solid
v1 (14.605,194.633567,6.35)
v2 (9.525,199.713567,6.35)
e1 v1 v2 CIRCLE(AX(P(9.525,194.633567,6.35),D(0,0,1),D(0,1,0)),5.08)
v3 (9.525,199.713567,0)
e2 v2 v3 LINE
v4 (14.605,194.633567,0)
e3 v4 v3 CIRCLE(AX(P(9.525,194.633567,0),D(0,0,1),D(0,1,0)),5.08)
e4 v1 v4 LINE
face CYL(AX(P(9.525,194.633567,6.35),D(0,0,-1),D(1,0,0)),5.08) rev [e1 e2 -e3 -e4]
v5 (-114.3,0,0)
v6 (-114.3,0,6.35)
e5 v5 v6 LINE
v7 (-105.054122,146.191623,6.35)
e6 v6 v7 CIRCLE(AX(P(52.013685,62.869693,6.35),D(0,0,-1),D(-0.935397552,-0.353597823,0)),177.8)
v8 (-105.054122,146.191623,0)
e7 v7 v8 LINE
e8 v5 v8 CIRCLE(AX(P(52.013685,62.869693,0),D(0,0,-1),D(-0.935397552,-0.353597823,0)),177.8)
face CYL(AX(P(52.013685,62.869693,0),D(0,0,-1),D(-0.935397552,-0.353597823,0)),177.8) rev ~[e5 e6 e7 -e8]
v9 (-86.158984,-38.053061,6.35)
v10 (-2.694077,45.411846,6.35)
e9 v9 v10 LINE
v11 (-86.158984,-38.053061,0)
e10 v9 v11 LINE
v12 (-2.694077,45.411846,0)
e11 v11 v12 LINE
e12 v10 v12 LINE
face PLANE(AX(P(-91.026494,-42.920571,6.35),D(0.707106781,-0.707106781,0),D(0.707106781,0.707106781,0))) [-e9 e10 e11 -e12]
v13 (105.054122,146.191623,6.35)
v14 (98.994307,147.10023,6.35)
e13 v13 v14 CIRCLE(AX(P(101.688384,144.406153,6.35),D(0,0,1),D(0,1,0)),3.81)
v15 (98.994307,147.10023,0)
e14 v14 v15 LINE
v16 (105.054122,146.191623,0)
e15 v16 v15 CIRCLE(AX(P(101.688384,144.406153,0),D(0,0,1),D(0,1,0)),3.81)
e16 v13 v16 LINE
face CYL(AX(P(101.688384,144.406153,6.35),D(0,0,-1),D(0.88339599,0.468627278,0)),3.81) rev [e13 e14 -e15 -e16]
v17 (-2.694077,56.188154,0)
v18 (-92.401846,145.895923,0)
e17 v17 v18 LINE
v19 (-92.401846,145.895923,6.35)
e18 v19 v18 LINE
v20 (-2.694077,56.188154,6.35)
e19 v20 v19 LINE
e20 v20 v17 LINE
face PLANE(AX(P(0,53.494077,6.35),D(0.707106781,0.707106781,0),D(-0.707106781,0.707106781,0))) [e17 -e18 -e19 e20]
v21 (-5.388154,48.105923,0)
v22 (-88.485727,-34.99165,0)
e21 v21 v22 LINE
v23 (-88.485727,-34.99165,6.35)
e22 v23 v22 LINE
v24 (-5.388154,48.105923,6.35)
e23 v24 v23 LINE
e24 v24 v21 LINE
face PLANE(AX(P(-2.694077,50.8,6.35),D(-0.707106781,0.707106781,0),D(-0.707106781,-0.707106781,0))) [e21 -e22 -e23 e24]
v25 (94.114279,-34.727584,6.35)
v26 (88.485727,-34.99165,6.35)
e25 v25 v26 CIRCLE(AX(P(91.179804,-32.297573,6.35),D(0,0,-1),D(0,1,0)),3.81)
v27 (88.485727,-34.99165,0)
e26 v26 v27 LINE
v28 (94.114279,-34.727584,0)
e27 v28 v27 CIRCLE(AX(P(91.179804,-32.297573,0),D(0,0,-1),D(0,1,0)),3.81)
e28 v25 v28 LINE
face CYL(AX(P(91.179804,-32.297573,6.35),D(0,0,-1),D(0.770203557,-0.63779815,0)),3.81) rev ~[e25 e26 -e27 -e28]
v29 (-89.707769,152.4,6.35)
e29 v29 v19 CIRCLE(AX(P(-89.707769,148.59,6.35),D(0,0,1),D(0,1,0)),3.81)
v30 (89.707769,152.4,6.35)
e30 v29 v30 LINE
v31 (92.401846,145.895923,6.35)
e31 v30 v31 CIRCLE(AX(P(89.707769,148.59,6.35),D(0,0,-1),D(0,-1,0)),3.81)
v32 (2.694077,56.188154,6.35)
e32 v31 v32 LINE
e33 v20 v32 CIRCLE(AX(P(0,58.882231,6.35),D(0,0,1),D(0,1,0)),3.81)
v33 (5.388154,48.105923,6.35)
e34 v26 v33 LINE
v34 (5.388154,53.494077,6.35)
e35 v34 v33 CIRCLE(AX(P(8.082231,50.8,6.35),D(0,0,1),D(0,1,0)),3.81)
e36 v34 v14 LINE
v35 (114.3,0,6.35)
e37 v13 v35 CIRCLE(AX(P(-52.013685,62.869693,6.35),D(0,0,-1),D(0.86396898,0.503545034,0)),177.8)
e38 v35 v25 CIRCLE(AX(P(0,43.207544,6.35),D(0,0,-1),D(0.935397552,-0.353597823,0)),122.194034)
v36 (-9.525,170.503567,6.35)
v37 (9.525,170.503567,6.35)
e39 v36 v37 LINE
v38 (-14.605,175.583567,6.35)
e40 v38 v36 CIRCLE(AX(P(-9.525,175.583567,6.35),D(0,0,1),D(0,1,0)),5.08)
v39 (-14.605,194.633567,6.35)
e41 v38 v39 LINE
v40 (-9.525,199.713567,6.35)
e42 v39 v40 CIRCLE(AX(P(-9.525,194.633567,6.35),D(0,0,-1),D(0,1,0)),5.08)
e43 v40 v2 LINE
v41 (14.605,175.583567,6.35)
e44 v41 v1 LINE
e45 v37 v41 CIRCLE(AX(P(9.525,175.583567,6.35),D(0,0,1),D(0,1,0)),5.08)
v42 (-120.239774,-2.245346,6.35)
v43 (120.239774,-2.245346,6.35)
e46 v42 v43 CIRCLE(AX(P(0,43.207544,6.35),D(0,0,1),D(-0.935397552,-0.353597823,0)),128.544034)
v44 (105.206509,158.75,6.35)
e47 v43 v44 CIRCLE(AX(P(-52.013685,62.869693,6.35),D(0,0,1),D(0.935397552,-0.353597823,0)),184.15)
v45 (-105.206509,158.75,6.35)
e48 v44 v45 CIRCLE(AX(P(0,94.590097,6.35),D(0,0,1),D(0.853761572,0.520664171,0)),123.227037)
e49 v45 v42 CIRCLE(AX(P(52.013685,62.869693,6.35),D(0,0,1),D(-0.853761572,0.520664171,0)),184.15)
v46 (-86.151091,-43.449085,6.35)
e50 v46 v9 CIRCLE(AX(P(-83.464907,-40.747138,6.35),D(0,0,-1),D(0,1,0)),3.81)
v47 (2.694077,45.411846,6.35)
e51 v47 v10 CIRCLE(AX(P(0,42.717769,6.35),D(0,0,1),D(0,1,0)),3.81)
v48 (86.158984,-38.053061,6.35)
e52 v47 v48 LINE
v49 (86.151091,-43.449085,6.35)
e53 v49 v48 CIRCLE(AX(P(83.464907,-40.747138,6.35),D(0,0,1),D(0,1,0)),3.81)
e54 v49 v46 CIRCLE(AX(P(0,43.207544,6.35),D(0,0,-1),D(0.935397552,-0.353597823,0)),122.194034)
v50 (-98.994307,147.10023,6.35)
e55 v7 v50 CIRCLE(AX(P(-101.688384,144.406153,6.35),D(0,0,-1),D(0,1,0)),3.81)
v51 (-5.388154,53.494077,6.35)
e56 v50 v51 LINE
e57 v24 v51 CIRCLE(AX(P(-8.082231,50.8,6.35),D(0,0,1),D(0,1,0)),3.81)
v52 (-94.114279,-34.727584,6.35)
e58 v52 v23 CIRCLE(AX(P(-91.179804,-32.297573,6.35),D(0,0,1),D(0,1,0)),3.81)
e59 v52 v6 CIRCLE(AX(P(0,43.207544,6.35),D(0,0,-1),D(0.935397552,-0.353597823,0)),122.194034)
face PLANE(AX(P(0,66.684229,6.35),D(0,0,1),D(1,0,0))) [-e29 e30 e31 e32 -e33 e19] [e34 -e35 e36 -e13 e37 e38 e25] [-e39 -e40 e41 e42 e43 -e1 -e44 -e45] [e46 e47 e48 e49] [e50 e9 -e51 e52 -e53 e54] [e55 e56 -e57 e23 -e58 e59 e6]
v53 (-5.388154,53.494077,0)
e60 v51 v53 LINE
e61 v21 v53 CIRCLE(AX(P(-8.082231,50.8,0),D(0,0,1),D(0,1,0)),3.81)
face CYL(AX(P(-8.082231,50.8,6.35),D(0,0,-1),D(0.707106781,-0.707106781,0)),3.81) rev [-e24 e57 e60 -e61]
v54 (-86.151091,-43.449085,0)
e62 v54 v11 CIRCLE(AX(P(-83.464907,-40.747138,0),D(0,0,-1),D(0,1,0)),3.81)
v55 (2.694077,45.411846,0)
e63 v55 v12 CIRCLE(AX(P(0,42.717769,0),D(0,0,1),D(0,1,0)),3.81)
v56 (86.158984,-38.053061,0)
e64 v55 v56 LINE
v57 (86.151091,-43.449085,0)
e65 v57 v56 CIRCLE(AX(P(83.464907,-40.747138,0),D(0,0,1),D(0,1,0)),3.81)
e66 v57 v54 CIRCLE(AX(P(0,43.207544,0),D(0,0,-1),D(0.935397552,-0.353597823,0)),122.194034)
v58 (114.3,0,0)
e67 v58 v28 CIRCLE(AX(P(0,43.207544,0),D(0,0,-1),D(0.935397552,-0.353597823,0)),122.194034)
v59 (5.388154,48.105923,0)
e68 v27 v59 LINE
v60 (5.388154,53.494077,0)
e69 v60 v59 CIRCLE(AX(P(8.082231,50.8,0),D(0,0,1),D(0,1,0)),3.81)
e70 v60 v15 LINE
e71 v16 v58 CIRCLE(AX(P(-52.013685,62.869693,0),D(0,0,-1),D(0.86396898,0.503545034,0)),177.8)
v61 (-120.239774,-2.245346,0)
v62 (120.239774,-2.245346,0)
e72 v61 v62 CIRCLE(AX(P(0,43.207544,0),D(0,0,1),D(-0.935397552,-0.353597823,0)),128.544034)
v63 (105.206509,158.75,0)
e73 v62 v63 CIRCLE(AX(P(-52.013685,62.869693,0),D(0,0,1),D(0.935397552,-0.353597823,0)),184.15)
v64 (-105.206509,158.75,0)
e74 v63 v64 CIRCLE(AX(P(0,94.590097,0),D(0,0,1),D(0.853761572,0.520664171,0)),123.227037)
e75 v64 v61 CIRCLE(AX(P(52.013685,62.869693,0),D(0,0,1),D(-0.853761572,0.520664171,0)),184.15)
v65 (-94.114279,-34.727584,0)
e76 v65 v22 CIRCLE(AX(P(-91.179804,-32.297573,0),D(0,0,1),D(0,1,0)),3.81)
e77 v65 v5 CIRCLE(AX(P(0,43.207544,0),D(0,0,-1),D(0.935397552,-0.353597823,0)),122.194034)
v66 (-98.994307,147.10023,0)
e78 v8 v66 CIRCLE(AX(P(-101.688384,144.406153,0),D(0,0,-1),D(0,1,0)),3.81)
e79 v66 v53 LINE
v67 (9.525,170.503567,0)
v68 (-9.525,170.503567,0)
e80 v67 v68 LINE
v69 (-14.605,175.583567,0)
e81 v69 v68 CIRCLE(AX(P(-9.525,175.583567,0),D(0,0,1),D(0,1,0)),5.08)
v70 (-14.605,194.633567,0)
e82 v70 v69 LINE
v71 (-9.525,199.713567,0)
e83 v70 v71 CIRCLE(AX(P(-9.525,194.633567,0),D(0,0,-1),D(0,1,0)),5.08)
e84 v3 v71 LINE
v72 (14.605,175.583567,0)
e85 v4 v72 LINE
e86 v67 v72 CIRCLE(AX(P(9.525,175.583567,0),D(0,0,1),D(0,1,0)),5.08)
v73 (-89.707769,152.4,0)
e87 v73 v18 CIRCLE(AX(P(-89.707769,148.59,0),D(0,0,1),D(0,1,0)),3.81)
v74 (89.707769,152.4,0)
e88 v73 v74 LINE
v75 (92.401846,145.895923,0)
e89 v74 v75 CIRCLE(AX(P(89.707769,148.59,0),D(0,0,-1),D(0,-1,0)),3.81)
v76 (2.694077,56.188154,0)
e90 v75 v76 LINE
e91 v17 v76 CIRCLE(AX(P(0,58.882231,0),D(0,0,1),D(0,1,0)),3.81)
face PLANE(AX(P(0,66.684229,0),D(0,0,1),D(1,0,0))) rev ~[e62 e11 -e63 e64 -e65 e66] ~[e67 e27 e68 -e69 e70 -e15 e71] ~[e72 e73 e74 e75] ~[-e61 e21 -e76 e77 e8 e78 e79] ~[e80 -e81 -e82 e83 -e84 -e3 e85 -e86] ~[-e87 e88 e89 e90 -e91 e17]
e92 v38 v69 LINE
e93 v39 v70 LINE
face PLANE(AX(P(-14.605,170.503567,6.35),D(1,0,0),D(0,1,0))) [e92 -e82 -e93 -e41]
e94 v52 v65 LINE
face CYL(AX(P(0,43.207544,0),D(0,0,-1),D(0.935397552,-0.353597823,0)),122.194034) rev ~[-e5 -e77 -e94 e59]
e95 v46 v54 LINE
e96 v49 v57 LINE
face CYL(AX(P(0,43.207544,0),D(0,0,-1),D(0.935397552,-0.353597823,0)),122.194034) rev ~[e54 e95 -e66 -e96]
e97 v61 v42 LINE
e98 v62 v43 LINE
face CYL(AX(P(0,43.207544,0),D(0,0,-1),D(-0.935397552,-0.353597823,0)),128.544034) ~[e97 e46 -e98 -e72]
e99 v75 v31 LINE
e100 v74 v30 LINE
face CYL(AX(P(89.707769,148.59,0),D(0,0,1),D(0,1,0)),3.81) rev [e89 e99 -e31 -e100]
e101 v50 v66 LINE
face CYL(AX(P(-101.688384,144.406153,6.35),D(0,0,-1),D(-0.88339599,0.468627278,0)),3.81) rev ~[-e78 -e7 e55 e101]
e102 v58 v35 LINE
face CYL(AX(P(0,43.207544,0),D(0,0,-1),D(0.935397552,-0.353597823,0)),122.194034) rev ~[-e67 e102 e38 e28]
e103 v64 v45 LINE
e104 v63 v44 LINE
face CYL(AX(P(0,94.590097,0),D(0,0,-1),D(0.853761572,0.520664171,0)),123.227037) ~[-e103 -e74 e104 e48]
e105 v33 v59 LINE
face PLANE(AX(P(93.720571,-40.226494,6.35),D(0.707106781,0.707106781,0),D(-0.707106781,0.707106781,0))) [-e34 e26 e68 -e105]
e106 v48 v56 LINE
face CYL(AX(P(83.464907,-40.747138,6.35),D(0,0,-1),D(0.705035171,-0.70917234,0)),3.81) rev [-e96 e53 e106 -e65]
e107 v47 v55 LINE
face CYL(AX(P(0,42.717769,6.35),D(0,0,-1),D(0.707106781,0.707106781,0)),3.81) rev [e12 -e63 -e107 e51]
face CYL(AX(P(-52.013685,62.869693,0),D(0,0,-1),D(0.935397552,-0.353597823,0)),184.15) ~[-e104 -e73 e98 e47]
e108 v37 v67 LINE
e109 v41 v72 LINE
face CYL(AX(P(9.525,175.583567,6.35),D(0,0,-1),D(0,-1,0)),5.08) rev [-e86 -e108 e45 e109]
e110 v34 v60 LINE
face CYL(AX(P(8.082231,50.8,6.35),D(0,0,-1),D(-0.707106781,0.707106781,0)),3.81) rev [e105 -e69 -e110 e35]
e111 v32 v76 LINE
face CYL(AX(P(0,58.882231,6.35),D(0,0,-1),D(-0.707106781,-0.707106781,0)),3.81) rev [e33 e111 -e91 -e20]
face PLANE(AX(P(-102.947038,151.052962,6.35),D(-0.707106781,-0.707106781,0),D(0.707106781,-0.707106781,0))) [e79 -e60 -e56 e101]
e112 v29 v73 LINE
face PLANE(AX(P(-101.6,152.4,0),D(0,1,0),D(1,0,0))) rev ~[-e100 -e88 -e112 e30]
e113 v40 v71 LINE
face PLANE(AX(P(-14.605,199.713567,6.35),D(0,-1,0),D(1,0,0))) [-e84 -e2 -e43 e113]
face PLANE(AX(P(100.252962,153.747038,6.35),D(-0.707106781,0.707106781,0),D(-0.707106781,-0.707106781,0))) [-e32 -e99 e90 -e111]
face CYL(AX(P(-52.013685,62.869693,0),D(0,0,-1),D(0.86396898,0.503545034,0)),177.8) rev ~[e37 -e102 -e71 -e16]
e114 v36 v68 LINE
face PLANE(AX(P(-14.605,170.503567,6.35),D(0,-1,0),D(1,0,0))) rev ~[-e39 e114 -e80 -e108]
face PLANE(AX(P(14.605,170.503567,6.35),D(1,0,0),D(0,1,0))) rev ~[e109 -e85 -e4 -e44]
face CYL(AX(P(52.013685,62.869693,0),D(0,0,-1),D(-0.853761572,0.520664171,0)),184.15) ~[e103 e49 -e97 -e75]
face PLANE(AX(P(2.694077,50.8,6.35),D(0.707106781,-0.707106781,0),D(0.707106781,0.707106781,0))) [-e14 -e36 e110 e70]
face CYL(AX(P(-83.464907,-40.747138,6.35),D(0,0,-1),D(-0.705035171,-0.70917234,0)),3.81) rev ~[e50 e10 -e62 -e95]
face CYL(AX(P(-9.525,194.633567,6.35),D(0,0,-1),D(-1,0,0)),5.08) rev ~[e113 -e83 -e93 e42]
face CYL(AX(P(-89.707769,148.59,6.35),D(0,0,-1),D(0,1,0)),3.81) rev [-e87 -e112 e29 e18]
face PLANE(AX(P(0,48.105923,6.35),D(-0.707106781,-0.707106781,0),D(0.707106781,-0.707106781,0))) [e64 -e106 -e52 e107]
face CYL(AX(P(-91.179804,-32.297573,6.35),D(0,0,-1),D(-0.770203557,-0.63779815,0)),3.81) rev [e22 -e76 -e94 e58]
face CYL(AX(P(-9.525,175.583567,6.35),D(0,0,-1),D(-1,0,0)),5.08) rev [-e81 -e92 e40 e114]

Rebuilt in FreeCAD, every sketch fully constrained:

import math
import FreeCAD as App
import Part
import Sketcher
from FreeCAD import Vector
Q = App.Units.Quantity


def edges_at(feature, points):
    """Names of the edges that pass closest to the given points."""
    edges = feature.Shape.Edges
    near = lambda p: min(range(len(edges)), key=lambda i: edges[i].distToShape(Part.Vertex(*p))[0])
    return sorted({f"Edge{near(p) + 1}" for p in points})

doc = App.newDocument("Part")
params = doc.addObject("Spreadsheet::Sheet", "Params")
for row, (alias, value) in enumerate([
    ("sketch1_radius", "7 in"),
    ("sketch1_width", "8 in"),
    ("sketch1_radius2", "7.25 in"),
    ("pad1_length", "0.25 in"),
    ("sketch2_width", "1.15 in"),
    ("fillet_radius", "0.2 in"),
    ("sketch3_length", "0.15 in"),
    ("pad2_length", "0.25 in"),
    ("fillet2_radius", "0.15 in"),
], start=1):
    params.set(f"A{row}", alias)
    params.set(f"B{row}", "=" + value)
    params.setAlias(f"B{row}", alias)

body = doc.addObject("PartDesign::Body", "Body")

# Sketch on XY plane
sketch1 = body.newObject("Sketcher::SketchObject", "Sketch")
sketch1.AttachmentSupport = (doc.getObject("XY_Plane"), [""])
sketch1.MapMode = "FlatFace"
sketch1.addGeometry([
    Part.ArcOfCircle(Part.Circle(Vector(52, 63, 0), Vector(0, 0, 1), 184), math.radians(149), math.radians(201)),  # 0
    Part.ArcOfCircle(Part.Circle(Vector(0, 43, 0), Vector(0, 0, 1), 129), math.radians(-159), math.radians(-21)),  # 1
    Part.ArcOfCircle(Part.Circle(Vector(-52, 63, 0), Vector(0, 0, 1), 184), math.radians(-21), math.radians(31)),  # 2
    Part.ArcOfCircle(Part.Circle(Vector(0, 95, 0), Vector(0, 0, 1), 123), math.radians(31), math.radians(149)),  # 3
    Part.ArcOfCircle(Part.Circle(Vector(52, 63, 0), Vector(0, 0, 1), 178), math.radians(150), math.radians(201)),  # 4
    Part.LineSegment(Vector(-102, 152, 0), Vector(102, 152, 0)),  # 5
    Part.ArcOfCircle(Part.Circle(Vector(-52, 63, 0), Vector(0, 0, 1), 178), math.radians(-21), math.radians(30)),  # 6
    Part.ArcOfCircle(Part.Circle(Vector(0, 43, 0), Vector(0, 0, 1), 122), math.radians(-159), math.radians(-21)),  # 7
], False)
sketch1.addConstraint([
    Sketcher.Constraint("Tangent", 0, 2, 1, 1),
    Sketcher.Constraint("Tangent", 1, 2, 2, 1),
    Sketcher.Constraint("Tangent", 2, 2, 3, 1),
    Sketcher.Constraint("Tangent", 3, 2, 0, 1),
    Sketcher.Constraint("Coincident", 4, 1, 5, 1),
    Sketcher.Constraint("Coincident", 5, 2, 6, 2),
    Sketcher.Constraint("Tangent", 6, 1, 7, 2),
    Sketcher.Constraint("Tangent", 7, 1, 4, 2),
    Sketcher.Constraint("Horizontal", 5),
    Sketcher.Constraint("Coincident", 4, 3, 0, 3),
    Sketcher.Constraint("Coincident", 6, 3, 2, 3),
    Sketcher.Constraint("Coincident", 7, 3, 1, 3),
    Sketcher.Constraint("Equal", 0, 2),
    Sketcher.Constraint("Symmetric", 6, 1, 7, 1, -1, 1),
    Sketcher.Constraint("PointOnObject", 1, 3, -2),
    Sketcher.Constraint("Radius", 4, Q("7 in")),
    Sketcher.Constraint("DistanceX", 5, 1, 5, 2, Q("8 in")),
    Sketcher.Constraint("Radius", 0, Q("7.25 in")),
    Sketcher.Constraint("DistanceY", -1, 1, 4, 1, Q("6 in")),
    Sketcher.Constraint("DistanceX", -1, 1, 6, 1, Q("4.5 in")),
    Sketcher.Constraint("DistanceY", -1, 1, 2, 2, Q("6.25 in")),
])
sketch1.setExpression("Constraints[15]", "Params.sketch1_radius")
sketch1.setExpression("Constraints[16]", "Params.sketch1_width")
sketch1.setExpression("Constraints[17]", "Params.sketch1_radius2")
pad1 = body.newObject("PartDesign::Pad", "Pad")
pad1.Profile = sketch1
pad1.setExpression("Length", "Params.pad1_length")

# Sketch on XY plane
sketch2 = body.newObject("Sketcher::SketchObject", "Sketch001")
sketch2.AttachmentSupport = (doc.getObject("XY_Plane"), [""])
sketch2.MapMode = "FlatFace"
sketch2.AttachmentOffset = App.Placement(Vector(0, 0, 0.25 * 25.4), App.Rotation())
sketch2.addGeometry([
    Part.LineSegment(Vector(-15, 200, 0), Vector(-15, 171, 0)),
    Part.LineSegment(Vector(-15, 171, 0), Vector(15, 171, 0)),
    Part.LineSegment(Vector(15, 171, 0), Vector(15, 200, 0)),
    Part.LineSegment(Vector(15, 200, 0), Vector(-15, 200, 0)),
], False)
sketch2.addConstraint([
    Sketcher.Constraint("Coincident", 0, 2, 1, 1),
    Sketcher.Constraint("Coincident", 1, 2, 2, 1),
    Sketcher.Constraint("Coincident", 2, 2, 3, 1),
    Sketcher.Constraint("Coincident", 3, 2, 0, 1),
    Sketcher.Constraint("Vertical", 0),
    Sketcher.Constraint("Horizontal", 1),
    Sketcher.Constraint("Vertical", 2),
    Sketcher.Constraint("Horizontal", 3),
    Sketcher.Constraint("Equal", 3, 0),
    Sketcher.Constraint("DistanceX", 1, 1, 1, 2, Q("1.15 in")),
    Sketcher.Constraint("DistanceX", 0, 2, -1, 1, Q("0.575 in")),
    Sketcher.Constraint("DistanceY", -1, 1, 0, 2, Q("170.503567 mm")),
])
sketch2.setExpression("Constraints[9]", "Params.sketch2_width")
pocket1 = body.newObject("PartDesign::Pocket", "Pocket")
pocket1.Profile = sketch2
pocket1.Type = "UpToFirst"
doc.recompute()

fillet = body.newObject("PartDesign::Fillet", "Fillet")
fillet.Base = (pocket1, edges_at(pocket1, [
    (14.605, 199.714, 3.175),
    (14.605, 170.504, 3.175),
    (-14.605, 170.504, 3.175),
    (-14.605, 199.714, 3.175),
]))
fillet.setExpression("Radius", "Params.fillet_radius")

# Sketch on XY plane
sketch3 = body.newObject("Sketcher::SketchObject", "Sketch002")
sketch3.AttachmentSupport = (doc.getObject("XY_Plane"), [""])
sketch3.MapMode = "FlatFace"
sketch3.AttachmentOffset = App.Placement(Vector(0, 0, 0.25 * 25.4), App.Rotation())
sketch3.addGeometry([
    Part.LineSegment(Vector(-100.3, 153.7, 0), Vector(-102.9, 151.1, 0)),  # 0
    Part.LineSegment(Vector(-102.9, 151.1, 0), Vector(-2.7, 50.8, 0)),  # 1
    Part.LineSegment(Vector(-2.7, 50.8, 0), Vector(-93.7, -40.2, 0)),  # 2
    Part.LineSegment(Vector(-93.7, -40.2, 0), Vector(-91, -42.9, 0)),  # 3
    Part.LineSegment(Vector(-91, -42.9, 0), Vector(0, 48.1, 0)),  # 4
    Part.LineSegment(Vector(0, 48.1, 0), Vector(91, -42.9, 0)),  # 5
    Part.LineSegment(Vector(91, -42.9, 0), Vector(93.7, -40.2, 0)),  # 6
    Part.LineSegment(Vector(93.7, -40.2, 0), Vector(2.7, 50.8, 0)),  # 7
    Part.LineSegment(Vector(2.7, 50.8, 0), Vector(102.9, 151.1, 0)),  # 8
    Part.LineSegment(Vector(102.9, 151.1, 0), Vector(100.3, 153.7, 0)),  # 9
    Part.LineSegment(Vector(100.3, 153.7, 0), Vector(0, 53.5, 0)),  # 10
    Part.LineSegment(Vector(0, 53.5, 0), Vector(-100.3, 153.7, 0)),  # 11
], False)
sketch3.addConstraint([
    Sketcher.Constraint("Coincident", 0, 2, 1, 1),
    Sketcher.Constraint("Coincident", 1, 2, 2, 1),
    Sketcher.Constraint("Coincident", 2, 2, 3, 1),
    Sketcher.Constraint("Coincident", 3, 2, 4, 1),
    Sketcher.Constraint("Coincident", 4, 2, 5, 1),
    Sketcher.Constraint("Coincident", 5, 2, 6, 1),
    Sketcher.Constraint("Coincident", 6, 2, 7, 1),
    Sketcher.Constraint("Coincident", 7, 2, 8, 1),
    Sketcher.Constraint("Coincident", 8, 2, 9, 1),
    Sketcher.Constraint("Coincident", 9, 2, 10, 1),
    Sketcher.Constraint("Coincident", 10, 2, 11, 1),
    Sketcher.Constraint("Coincident", 11, 2, 0, 1),
    Sketcher.Constraint("Symmetric", 3, 2, 5, 2, -2),
    Sketcher.Constraint("Symmetric", 2, 2, 6, 2, -2),
    Sketcher.Constraint("Symmetric", 1, 2, 7, 2, -2),
    Sketcher.Constraint("Symmetric", 0, 2, 8, 2, -2),
    Sketcher.Constraint("Symmetric", 9, 2, 11, 2, -2),
    Sketcher.Constraint("PointOnObject", 4, 2, -2),
    Sketcher.Constraint("PointOnObject", 10, 2, -2),
    Sketcher.Constraint("Perpendicular", 0, 1),
    Sketcher.Constraint("Perpendicular", 1, 2),
    Sketcher.Constraint("Perpendicular", 2, 3),
    Sketcher.Constraint("Perpendicular", 3, 4),
    Sketcher.Constraint("Perpendicular", 4, 5),
    Sketcher.Constraint("Perpendicular", 9, 10),
    Sketcher.Constraint("Equal", 0, 3),
    Sketcher.Constraint("Equal", 2, 4),
    Sketcher.Constraint("DistanceY", -1, 1, 1, 2, Q("2 in")),
    Sketcher.Constraint("Distance", 0, Q("0.15 in")),
    Sketcher.Constraint("DistanceX", 0, 2, -1, 1, Q("102.947038 mm")),
    Sketcher.Constraint("DistanceX", 2, 2, -1, 1, Q("93.720571 mm")),
])
sketch3.setExpression("Constraints[28]", "Params.sketch3_length")
pad2 = body.newObject("PartDesign::Pad", "Pad001")
pad2.Profile = sketch3
pad2.setExpression("Length", "Params.pad2_length")
pad2.Reversed = True
doc.recompute()

fillet2 = body.newObject("PartDesign::Fillet", "Fillet001")
fillet2.Base = (pad2, edges_at(pad2, [
    (102.584, 150.69, 3.175),
    (98.906, 152.4, 3.175),
    (-88.819, -40.713, 3.175),
    (-91.394, -37.9, 3.175),
    (0, 53.494, 3.175),
    (-102.584, 150.69, 3.175),
    (-98.906, 152.4, 3.175),
    (0, 48.106, 3.175),
    (88.819, -40.713, 3.175),
    (91.394, -37.9, 3.175),
    (2.694, 50.8, 3.175),
    (-2.694, 50.8, 3.175),
]))
fillet2.setExpression("Radius", "Params.fillet2_radius")

doc.recompute()
